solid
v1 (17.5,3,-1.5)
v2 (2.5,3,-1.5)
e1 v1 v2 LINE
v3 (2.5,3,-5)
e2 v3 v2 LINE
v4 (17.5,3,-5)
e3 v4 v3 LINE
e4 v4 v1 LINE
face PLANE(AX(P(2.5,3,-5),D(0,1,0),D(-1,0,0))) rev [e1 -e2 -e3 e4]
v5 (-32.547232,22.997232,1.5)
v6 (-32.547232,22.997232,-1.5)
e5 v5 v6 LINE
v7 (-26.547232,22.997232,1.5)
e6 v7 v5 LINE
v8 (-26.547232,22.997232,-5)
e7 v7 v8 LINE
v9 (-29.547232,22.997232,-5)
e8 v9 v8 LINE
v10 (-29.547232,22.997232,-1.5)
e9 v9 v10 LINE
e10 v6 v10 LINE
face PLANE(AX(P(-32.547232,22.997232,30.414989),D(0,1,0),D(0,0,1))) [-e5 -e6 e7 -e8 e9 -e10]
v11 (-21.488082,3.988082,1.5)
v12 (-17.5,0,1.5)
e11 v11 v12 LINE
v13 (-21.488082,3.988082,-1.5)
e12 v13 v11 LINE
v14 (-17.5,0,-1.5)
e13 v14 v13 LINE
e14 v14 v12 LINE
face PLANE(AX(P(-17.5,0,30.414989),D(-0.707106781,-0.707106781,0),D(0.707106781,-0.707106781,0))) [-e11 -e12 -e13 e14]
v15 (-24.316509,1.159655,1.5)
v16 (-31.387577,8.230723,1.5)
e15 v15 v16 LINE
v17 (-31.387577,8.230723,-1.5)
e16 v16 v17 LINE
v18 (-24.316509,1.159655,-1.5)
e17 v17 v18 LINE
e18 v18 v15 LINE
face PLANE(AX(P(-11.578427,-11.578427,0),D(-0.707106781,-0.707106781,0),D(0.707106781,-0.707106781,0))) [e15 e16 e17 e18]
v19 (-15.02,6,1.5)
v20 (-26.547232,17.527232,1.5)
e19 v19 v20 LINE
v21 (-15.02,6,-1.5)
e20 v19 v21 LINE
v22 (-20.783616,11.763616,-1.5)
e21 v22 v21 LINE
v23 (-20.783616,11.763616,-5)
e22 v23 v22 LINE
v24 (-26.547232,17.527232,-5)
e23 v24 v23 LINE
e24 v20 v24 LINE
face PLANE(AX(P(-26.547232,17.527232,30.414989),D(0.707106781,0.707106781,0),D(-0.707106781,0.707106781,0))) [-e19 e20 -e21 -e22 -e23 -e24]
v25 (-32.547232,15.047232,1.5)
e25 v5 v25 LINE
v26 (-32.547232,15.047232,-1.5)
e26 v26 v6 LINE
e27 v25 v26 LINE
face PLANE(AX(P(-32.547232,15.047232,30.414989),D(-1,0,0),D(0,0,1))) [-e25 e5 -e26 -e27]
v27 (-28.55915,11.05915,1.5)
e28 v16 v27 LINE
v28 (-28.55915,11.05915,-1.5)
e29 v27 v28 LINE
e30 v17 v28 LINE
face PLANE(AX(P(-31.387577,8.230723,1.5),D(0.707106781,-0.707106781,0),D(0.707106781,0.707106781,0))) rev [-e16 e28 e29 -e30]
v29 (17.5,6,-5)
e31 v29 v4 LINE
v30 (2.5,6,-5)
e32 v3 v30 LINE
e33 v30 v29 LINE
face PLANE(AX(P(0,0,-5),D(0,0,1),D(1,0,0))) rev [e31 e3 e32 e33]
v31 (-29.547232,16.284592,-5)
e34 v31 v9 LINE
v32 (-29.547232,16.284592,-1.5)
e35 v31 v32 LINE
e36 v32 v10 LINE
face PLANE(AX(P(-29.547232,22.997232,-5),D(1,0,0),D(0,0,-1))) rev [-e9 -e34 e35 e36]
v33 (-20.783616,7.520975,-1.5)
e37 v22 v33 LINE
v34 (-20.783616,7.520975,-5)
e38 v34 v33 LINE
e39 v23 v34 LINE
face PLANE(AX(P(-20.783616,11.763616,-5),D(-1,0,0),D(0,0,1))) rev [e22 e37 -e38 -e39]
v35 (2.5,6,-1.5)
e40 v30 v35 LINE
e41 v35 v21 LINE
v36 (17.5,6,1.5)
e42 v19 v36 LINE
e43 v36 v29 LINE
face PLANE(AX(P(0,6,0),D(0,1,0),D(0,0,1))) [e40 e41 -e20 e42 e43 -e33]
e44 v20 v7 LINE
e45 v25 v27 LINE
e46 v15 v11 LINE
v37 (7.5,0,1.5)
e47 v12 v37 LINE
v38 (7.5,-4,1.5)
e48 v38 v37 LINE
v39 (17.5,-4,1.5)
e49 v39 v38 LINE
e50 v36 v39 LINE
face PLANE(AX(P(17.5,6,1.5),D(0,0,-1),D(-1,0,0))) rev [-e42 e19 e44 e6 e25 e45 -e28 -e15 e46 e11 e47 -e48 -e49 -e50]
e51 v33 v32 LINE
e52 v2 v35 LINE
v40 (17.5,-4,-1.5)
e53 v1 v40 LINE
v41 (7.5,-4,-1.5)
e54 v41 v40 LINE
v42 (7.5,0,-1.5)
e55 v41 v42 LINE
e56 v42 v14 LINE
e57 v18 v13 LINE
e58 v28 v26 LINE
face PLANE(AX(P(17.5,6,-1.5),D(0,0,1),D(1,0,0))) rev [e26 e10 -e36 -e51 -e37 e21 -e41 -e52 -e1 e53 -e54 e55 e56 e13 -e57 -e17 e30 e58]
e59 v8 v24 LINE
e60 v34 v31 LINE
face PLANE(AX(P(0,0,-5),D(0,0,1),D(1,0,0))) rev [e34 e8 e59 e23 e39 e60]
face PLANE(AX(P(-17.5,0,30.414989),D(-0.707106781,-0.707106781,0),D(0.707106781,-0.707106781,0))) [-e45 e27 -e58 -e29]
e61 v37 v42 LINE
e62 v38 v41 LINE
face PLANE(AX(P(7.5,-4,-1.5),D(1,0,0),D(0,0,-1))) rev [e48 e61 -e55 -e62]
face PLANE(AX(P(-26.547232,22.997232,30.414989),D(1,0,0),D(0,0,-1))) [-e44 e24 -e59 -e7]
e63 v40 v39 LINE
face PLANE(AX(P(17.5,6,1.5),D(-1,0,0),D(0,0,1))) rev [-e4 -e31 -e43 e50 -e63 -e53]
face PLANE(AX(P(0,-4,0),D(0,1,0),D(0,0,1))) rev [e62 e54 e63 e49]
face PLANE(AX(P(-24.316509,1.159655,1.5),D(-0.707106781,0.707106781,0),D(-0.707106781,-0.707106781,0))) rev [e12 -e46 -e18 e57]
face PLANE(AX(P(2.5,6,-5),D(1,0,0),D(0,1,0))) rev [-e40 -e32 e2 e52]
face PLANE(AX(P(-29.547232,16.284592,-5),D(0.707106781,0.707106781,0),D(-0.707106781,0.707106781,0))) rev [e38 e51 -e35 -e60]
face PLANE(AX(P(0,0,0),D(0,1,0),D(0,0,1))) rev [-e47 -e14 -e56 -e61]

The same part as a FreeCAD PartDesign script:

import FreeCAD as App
import Part
import Sketcher

V = App.Vector
Q = App.Units.Quantity

doc = App.newDocument("Part")
params = doc.addObject("Spreadsheet::Sheet", "Params")
for row, (alias, value) in enumerate([
    ("sketch1_width", "35 mm"),
    ("sketch1_height", "3 mm"),
    ("pad1_length", "6 mm"),
    ("sketch2_width", "6 mm"),
    ("sketch2_width2", "2.48 mm"),
    ("sketch2_height", "7.95 mm"),
    ("sketch2_length", "21.28 mm"),
    ("pad2_length", "3 mm"),
    ("sketch3_width", "15 mm"),
    ("sketch3_width2", "3 mm"),
    ("sketch3_height", "5.47 mm"),
    ("pad3_length", "3.5 mm"),
    ("sketch4_width", "10 mm"),
    ("sketch4_height", "3 mm"),
    ("pad4_length", "4 mm"),
    ("sketch5_width", "3 mm"),
    ("sketch5_height", "10 mm"),
    ("pad5_length", "4 mm"),
], start=1):
    params.set(f"A{row}", alias)
    params.set(f"B{row}", "=" + value)
    params.setAlias(f"B{row}", alias)

body = doc.addObject("PartDesign::Body", "Body")

sketch1 = body.newObject("Sketcher::SketchObject", "Sketch")
sketch1.AttachmentSupport = (doc.getObject("XZ_Plane"), [""])
sketch1.MapMode = "FlatFace"
sketch1.addGeometry([
    Part.LineSegment(V(-17.5, -1.5, 0), V(-17.5, 1.5, 0)),
    Part.LineSegment(V(-17.5, 1.5, 0), V(17.5, 1.5, 0)),
    Part.LineSegment(V(17.5, 1.5, 0), V(17.5, -1.5, 0)),
    Part.LineSegment(V(17.5, -1.5, 0), V(-17.5, -1.5, 0)),
], False)
sketch1.addConstraint([
    Sketcher.Constraint("Coincident", 0, 2, 1, 1),
    Sketcher.Constraint("Coincident", 1, 2, 2, 1),
    Sketcher.Constraint("Coincident", 2, 2, 3, 1),
    Sketcher.Constraint("Coincident", 3, 2, 0, 1),
    Sketcher.Constraint("Vertical", 0),
    Sketcher.Constraint("Horizontal", 1),
    Sketcher.Constraint("Vertical", 2),
    Sketcher.Constraint("Horizontal", 3),
    Sketcher.Constraint("Symmetric", 0, 2, 2, 2, -1, 1),
    Sketcher.Constraint("DistanceX", 1, 1, 1, 2, Q("35 mm")),
    Sketcher.Constraint("DistanceY", 0, 1, 0, 2, Q("3 mm")),
])
sketch1.setExpression("Constraints[9]", "Params.sketch1_width")
sketch1.setExpression("Constraints[10]", "Params.sketch1_height")
pad1 = body.newObject("PartDesign::Pad", "Pad")
pad1.Profile = sketch1
pad1.setExpression("Length", "Params.pad1_length")
pad1.Reversed = True

sketch2 = body.newObject("Sketcher::SketchObject", "Sketch001")
sketch2.AttachmentSupport = (doc.getObject("XY_Plane"), [""])
sketch2.MapMode = "FlatFace"
sketch2.AttachmentOffset = App.Placement(V(0, 0, -1.5), App.Rotation())
sketch2.addGeometry([
    Part.LineSegment(V(-17.5, 0, 0), V(-32.5, 15, 0)),
    Part.LineSegment(V(-32.5, 15, 0), V(-32.5, 23, 0)),
    Part.LineSegment(V(-32.5, 23, 0), V(-26.5, 23, 0)),
    Part.LineSegment(V(-26.5, 23, 0), V(-26.5, 17.5, 0)),
    Part.LineSegment(V(-26.5, 17.5, 0), V(-15, 6, 0)),
    Part.LineSegment(V(-15, 6, 0), V(-17.5, 6, 0)),
    Part.LineSegment(V(-17.5, 6, 0), V(-17.5, 0, 0)),
], False)
sketch2.addConstraint([
    Sketcher.Constraint("Coincident", 0, 2, 1, 1),
    Sketcher.Constraint("Coincident", 1, 2, 2, 1),
    Sketcher.Constraint("Coincident", 2, 2, 3, 1),
    Sketcher.Constraint("Coincident", 3, 2, 4, 1),
    Sketcher.Constraint("Coincident", 4, 2, 5, 1),
    Sketcher.Constraint("Coincident", 5, 2, 6, 1),
    Sketcher.Constraint("Coincident", 6, 2, 0, 1),
    Sketcher.Constraint("Vertical", 1),
    Sketcher.Constraint("Horizontal", 2),
    Sketcher.Constraint("Vertical", 3),
    Sketcher.Constraint("Horizontal", 5),
    Sketcher.Constraint("Vertical", 6),
    Sketcher.Constraint("PointOnObject", 6, 2, -1),
    Sketcher.Constraint("Parallel", 0, 4),
    Sketcher.Constraint("Equal", 2, 6),
    Sketcher.Constraint("DistanceX", 2, 1, 2, 2, Q("6 mm")),
    Sketcher.Constraint("Angle", 0, Q("135 deg")),
    Sketcher.Constraint("DistanceX", 5, 2, 5, 1, Q("2.48 mm")),
    Sketcher.Constraint("DistanceY", 1, 1, 1, 2, Q("7.95 mm")),
    Sketcher.Constraint("DistanceX", 5, 2, -1, 1, Q("17.5 mm")),
    Sketcher.Constraint("Distance", 0, Q("21.28 mm")),
])
sketch2.setExpression("Constraints[15]", "Params.sketch2_width")
sketch2.setExpression("Constraints[17]", "Params.sketch2_width2")
sketch2.setExpression("Constraints[18]", "Params.sketch2_height")
sketch2.setExpression("Constraints[20]", "Params.sketch2_length")
pad2 = body.newObject("PartDesign::Pad", "Pad001")
pad2.Profile = sketch2
pad2.setExpression("Length", "Params.pad2_length")

sketch3 = body.newObject("Sketcher::SketchObject", "Sketch002")
sketch3.AttachmentSupport = (doc.getObject("XY_Plane"), [""])
sketch3.MapMode = "FlatFace"
sketch3.AttachmentOffset = App.Placement(V(0, 0, -1.5), App.Rotation())
sketch3.addGeometry([
    Part.LineSegment(V(17.5, 6, 0), V(17.5, 3, 0)),
    Part.LineSegment(V(17.5, 3, 0), V(2.5, 3, 0)),
    Part.LineSegment(V(2.5, 3, 0), V(2.5, 6, 0)),
    Part.LineSegment(V(2.5, 6, 0), V(17.5, 6, 0)),
    Part.LineSegment(V(-26.5, 17.5, 0), V(-20.8, 11.8, 0)),
    Part.LineSegment(V(-20.8, 11.8, 0), V(-20.8, 7.5, 0)),
    Part.LineSegment(V(-20.8, 7.5, 0), V(-29.5, 16.3, 0)),
    Part.LineSegment(V(-29.5, 16.3, 0), V(-29.5, 23, 0)),
    Part.LineSegment(V(-29.5, 23, 0), V(-26.5, 23, 0)),
    Part.LineSegment(V(-26.5, 23, 0), V(-26.5, 17.5, 0)),
], False)
sketch3.addConstraint([
    Sketcher.Constraint("Coincident", 0, 2, 1, 1),
    Sketcher.Constraint("Coincident", 1, 2, 2, 1),
    Sketcher.Constraint("Coincident", 2, 2, 3, 1),
    Sketcher.Constraint("Coincident", 3, 2, 0, 1),
    Sketcher.Constraint("Coincident", 4, 2, 5, 1),
    Sketcher.Constraint("Coincident", 5, 2, 6, 1),
    Sketcher.Constraint("Coincident", 6, 2, 7, 1),
    Sketcher.Constraint("Coincident", 7, 2, 8, 1),
    Sketcher.Constraint("Coincident", 8, 2, 9, 1),
    Sketcher.Constraint("Coincident", 9, 2, 4, 1),
    Sketcher.Constraint("Vertical", 0),
    Sketcher.Constraint("Horizontal", 1),
    Sketcher.Constraint("Vertical", 2),
    Sketcher.Constraint("Horizontal", 3),
    Sketcher.Constraint("Vertical", 5),
    Sketcher.Constraint("Vertical", 7),
    Sketcher.Constraint("Horizontal", 8),
    Sketcher.Constraint("Vertical", 9),
    Sketcher.Constraint("Parallel", 4, 6),
    Sketcher.Constraint("Equal", 8, 0),
    Sketcher.Constraint("DistanceX", 1, 2, 1, 1, Q("15 mm")),
    Sketcher.Constraint("DistanceX", 8, 1, 8, 2, Q("3 mm")),
    Sketcher.Constraint("Angle", 4, Q("-45 deg")),
    Sketcher.Constraint("DistanceY", -1, 1, 0, 2, Q("3 mm")),
    Sketcher.Constraint("DistanceY", 9, 2, 9, 1, Q("5.47 mm")),
    Sketcher.Constraint("DistanceX", -1, 1, 0, 2, Q("17.5 mm")),
    Sketcher.Constraint("DistanceY", 5, 2, 5, 1, Q("4.242641 mm")),
    Sketcher.Constraint("DistanceY", -1, 1, 6, 2, Q("16.284592 mm")),
    Sketcher.Constraint("Distance", 4, Q("8.150984 mm")),
    Sketcher.Constraint("DistanceX", 4, 2, -1, 1, Q("20.783616 mm")),
])
sketch3.setExpression("Constraints[20]", "Params.sketch3_width")
sketch3.setExpression("Constraints[21]", "Params.sketch3_width2")
sketch3.setExpression("Constraints[24]", "Params.sketch3_height")
pad3 = body.newObject("PartDesign::Pad", "Pad002")
pad3.Profile = sketch3
pad3.setExpression("Length", "Params.pad3_length")
pad3.Reversed = True

sketch4 = body.newObject("Sketcher::SketchObject", "Sketch003")
sketch4.AttachmentSupport = (doc.getObject("XZ_Plane"), [""])
sketch4.MapMode = "FlatFace"
sketch4.addGeometry([
    Part.LineSegment(V(7.5, 1.5, 0), V(7.5, -1.5, 0)),
    Part.LineSegment(V(7.5, -1.5, 0), V(17.5, -1.5, 0)),
    Part.LineSegment(V(17.5, -1.5, 0), V(17.5, 1.5, 0)),
    Part.LineSegment(V(17.5, 1.5, 0), V(7.5, 1.5, 0)),
], False)
sketch4.addConstraint([
    Sketcher.Constraint("Coincident", 0, 2, 1, 1),
    Sketcher.Constraint("Coincident", 1, 2, 2, 1),
    Sketcher.Constraint("Coincident", 2, 2, 3, 1),
    Sketcher.Constraint("Coincident", 3, 2, 0, 1),
    Sketcher.Constraint("Vertical", 0),
    Sketcher.Constraint("Horizontal", 1),
    Sketcher.Constraint("Vertical", 2),
    Sketcher.Constraint("Horizontal", 3),
    Sketcher.Constraint("DistanceX", 1, 1, 1, 2, Q("10 mm")),
    Sketcher.Constraint("DistanceY", 0, 2, 0, 1, Q("3 mm")),
    Sketcher.Constraint("DistanceX", -1, 1, 0, 2, Q("7.5 mm")),
    Sketcher.Constraint("DistanceY", 0, 2, -1, 1, Q("1.5 mm")),
])
sketch4.setExpression("Constraints[8]", "Params.sketch4_width")
sketch4.setExpression("Constraints[9]", "Params.sketch4_height")
pad4 = body.newObject("PartDesign::Pad", "Pad003")
pad4.Profile = sketch4
pad4.setExpression("Length", "Params.pad4_length")

sketch5 = body.newObject("Sketcher::SketchObject", "Sketch004")
sketch5.Placement = App.Placement(V(-8.75, -8.75, 0), App.Rotation(V(0, 0, 1), V(-0.707106781, 0.707106781, 0), V(-0.707106781, -0.707106781, 0), "ZXY"))
sketch5.addGeometry([
    Part.LineSegment(V(-1.5, 28, 0), V(-1.5, 18, 0)),
    Part.LineSegment(V(-1.5, 18, 0), V(1.5, 18, 0)),
    Part.LineSegment(V(1.5, 18, 0), V(1.5, 28, 0)),
    Part.LineSegment(V(1.5, 28, 0), V(-1.5, 28, 0)),
], False)
sketch5.addConstraint([
    Sketcher.Constraint("Coincident", 0, 2, 1, 1),
    Sketcher.Constraint("Coincident", 1, 2, 2, 1),
    Sketcher.Constraint("Coincident", 2, 2, 3, 1),
    Sketcher.Constraint("Coincident", 3, 2, 0, 1),
    Sketcher.Constraint("Vertical", 0),
    Sketcher.Constraint("Horizontal", 1),
    Sketcher.Constraint("Vertical", 2),
    Sketcher.Constraint("Horizontal", 3),
    Sketcher.Constraint("DistanceX", 1, 1, 1, 2, Q("3 mm")),
    Sketcher.Constraint("DistanceY", 0, 2, 0, 1, Q("10 mm")),
    Sketcher.Constraint("DistanceX", 0, 2, -1, 1, Q("1.5 mm")),
    Sketcher.Constraint("DistanceY", -1, 1, 0, 2, Q("18.014369 mm")),
])
sketch5.setExpression("Constraints[8]", "Params.sketch5_width")
sketch5.setExpression("Constraints[9]", "Params.sketch5_height")
pad5 = body.newObject("PartDesign::Pad", "Pad004")
pad5.Profile = sketch5
pad5.setExpression("Length", "Params.pad5_length")

doc.recompute()
